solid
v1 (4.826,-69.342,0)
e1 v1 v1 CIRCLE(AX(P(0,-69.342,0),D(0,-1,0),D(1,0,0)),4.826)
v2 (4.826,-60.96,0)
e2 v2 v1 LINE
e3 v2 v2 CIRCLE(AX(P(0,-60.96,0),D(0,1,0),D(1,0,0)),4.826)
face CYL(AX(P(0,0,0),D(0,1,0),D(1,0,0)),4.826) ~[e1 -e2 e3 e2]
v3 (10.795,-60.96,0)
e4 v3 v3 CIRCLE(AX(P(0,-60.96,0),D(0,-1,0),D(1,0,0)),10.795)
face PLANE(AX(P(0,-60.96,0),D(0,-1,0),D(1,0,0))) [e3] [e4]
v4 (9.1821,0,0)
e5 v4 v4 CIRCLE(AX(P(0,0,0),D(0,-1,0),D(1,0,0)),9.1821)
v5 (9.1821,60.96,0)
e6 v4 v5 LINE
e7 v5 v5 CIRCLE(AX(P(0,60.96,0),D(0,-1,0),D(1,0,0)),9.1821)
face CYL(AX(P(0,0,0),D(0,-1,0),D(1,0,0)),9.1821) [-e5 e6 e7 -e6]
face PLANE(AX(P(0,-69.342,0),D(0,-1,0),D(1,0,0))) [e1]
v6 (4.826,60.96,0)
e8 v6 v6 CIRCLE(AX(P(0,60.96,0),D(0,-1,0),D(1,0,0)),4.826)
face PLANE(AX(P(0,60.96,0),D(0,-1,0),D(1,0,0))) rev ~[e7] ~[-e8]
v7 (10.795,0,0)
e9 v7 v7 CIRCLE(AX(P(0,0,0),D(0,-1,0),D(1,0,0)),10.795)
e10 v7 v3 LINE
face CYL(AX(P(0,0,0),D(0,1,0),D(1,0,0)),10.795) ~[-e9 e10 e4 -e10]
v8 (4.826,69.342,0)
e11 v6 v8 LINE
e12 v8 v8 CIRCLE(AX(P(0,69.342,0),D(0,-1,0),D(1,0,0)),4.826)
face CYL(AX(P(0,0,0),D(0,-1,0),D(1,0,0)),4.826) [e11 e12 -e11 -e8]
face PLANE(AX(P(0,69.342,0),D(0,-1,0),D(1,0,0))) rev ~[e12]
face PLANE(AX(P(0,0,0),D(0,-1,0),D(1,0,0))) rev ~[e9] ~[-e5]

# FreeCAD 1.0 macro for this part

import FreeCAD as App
import Part
import Sketcher
Q = App.Units.Quantity

doc = App.newDocument("Part")
body = doc.addObject("PartDesign::Body", "Body")

# Sketch on XZ plane
sketch1 = body.newObject("Sketcher::SketchObject", "Sketch")
sketch1.AttachmentSupport = (doc.getObject("XZ_Plane"), [""])
sketch1.MapMode = "FlatFace"
sketch1.addGeometry(Part.Circle(App.Vector(0, 0, 0), App.Vector(0, 0, 1), 11), False)
sketch1.addConstraint([
    Sketcher.Constraint("Coincident", 0, 3, -1, 1),
    Sketcher.Constraint("Diameter", 0, Q("0.85 in")),
])
pad1 = body.newObject("PartDesign::Pad", "Pad")
pad1.Profile = sketch1
pad1.Length = Q("2.4 in")

# Sketch on XZ plane
sketch2 = body.newObject("Sketcher::SketchObject", "Sketch001")
sketch2.AttachmentSupport = (doc.getObject("XZ_Plane"), [""])
sketch2.MapMode = "FlatFace"
sketch2.addGeometry(Part.Circle(App.Vector(0, 0, 0), App.Vector(0, 0, 1), 4.8), False)
sketch2.addConstraint([
    Sketcher.Constraint("Coincident", 0, 3, -1, 1),
    Sketcher.Constraint("Diameter", 0, Q("0.38 in")),
])
pad2 = body.newObject("PartDesign::Pad", "Pad001")
pad2.Profile = sketch2
pad2.Length = Q("2.73 in")

# Sketch on XZ plane
sketch3 = body.newObject("Sketcher::SketchObject", "Sketch002")
sketch3.AttachmentSupport = (doc.getObject("XZ_Plane"), [""])
sketch3.MapMode = "FlatFace"
sketch3.addGeometry(Part.Circle(App.Vector(0, 0, 0), App.Vector(0, 0, 1), 9), False)
sketch3.addConstraint([
    Sketcher.Constraint("Coincident", 0, 3, -1, 1),
    Sketcher.Constraint("Diameter", 0, Q("0.723 in")),
])
pad3 = body.newObject("PartDesign::Pad", "Pad002")
pad3.Profile = sketch3
pad3.Length = Q("2.4 in")
pad3.Reversed = True

# Sketch on XZ plane
sketch4 = body.newObject("Sketcher::SketchObject", "Sketch003")
sketch4.AttachmentSupport = (doc.getObject("XZ_Plane"), [""])
sketch4.MapMode = "FlatFace"
sketch4.addGeometry(Part.Circle(App.Vector(0, 0, 0), App.Vector(0, 0, 1), 4.8), False)
sketch4.addConstraint([
    Sketcher.Constraint("Coincident", 0, 3, -1, 1),
    Sketcher.Constraint("Diameter", 0, Q("0.38 in")),
])
pad4 = body.newObject("PartDesign::Pad", "Pad003")
pad4.Profile = sketch4
pad4.Length = Q("2.73 in")
pad4.Reversed = True

doc.recompute()
